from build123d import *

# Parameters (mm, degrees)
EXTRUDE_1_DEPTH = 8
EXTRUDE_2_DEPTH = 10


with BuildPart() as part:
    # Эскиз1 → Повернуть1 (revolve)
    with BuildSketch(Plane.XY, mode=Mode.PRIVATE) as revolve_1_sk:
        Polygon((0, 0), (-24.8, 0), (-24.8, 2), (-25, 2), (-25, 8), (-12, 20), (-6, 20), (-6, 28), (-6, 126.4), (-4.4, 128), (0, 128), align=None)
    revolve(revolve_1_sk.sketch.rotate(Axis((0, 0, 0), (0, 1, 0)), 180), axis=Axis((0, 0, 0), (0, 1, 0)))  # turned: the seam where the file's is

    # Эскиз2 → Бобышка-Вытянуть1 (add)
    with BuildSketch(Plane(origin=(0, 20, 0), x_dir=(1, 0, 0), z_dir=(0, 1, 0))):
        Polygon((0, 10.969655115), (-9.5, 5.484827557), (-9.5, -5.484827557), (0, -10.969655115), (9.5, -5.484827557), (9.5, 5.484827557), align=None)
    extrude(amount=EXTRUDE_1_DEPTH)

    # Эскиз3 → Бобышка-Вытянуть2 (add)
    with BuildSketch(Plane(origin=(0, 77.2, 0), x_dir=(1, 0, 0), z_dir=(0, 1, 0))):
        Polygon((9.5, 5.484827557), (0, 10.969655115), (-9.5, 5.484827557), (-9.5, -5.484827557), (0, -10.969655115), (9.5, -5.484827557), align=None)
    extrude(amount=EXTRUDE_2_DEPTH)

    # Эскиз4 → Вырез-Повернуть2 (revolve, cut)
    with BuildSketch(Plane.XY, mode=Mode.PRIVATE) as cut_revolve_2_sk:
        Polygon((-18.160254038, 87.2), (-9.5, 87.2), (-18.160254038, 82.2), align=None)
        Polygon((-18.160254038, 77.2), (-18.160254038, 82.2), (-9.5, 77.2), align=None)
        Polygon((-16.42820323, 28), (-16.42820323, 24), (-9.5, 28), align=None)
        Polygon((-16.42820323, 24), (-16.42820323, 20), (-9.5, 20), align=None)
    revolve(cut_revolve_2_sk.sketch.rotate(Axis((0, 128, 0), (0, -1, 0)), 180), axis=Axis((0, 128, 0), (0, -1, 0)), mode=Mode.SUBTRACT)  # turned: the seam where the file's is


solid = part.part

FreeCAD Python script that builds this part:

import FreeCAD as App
import Part
import Sketcher

V = App.Vector
Q = App.Units.Quantity

doc = App.newDocument("Part")
body = doc.addObject("PartDesign::Body", "Body")

# Sketch on XY plane
sketch1 = doc.addObject("Sketcher::SketchObject", "Sketch")
body.addObject(sketch1)
sketch1.AttachmentSupport = (doc.XY_Plane, [""])
sketch1.MapMode = "FlatFace"
sketch1.addGeometry([
    Part.LineSegment(V(-24.8, 0, 0), V(0, 0, 0)),  # 0
    Part.LineSegment(V(0, 0, 0), V(0, 128, 0)),  # 1
    Part.LineSegment(V(0, 128, 0), V(-4.4, 128, 0)),  # 2
    Part.LineSegment(V(-4.4, 128, 0), V(-6, 126.4, 0)),  # 3
    Part.LineSegment(V(-6, 126.4, 0), V(-6, 20, 0)),  # 4
    Part.LineSegment(V(-6, 20, 0), V(-12, 20, 0)),  # 5
    Part.LineSegment(V(-12, 20, 0), V(-25, 8, 0)),  # 6
    Part.LineSegment(V(-25, 8, 0), V(-25, 2, 0)),  # 7
    Part.LineSegment(V(-25, 2, 0), V(-24.8, 2, 0)),  # 8
    Part.LineSegment(V(-24.8, 2, 0), V(-24.8, 0, 0)),  # 9
], False)
sketch1.addConstraint([
    Sketcher.Constraint("Coincident", 0, 2, 1, 1),
    Sketcher.Constraint("Coincident", 1, 2, 2, 1),
    Sketcher.Constraint("Coincident", 2, 2, 3, 1),
    Sketcher.Constraint("Coincident", 3, 2, 4, 1),
    Sketcher.Constraint("Coincident", 4, 2, 5, 1),
    Sketcher.Constraint("Coincident", 5, 2, 6, 1),
    Sketcher.Constraint("Coincident", 6, 2, 7, 1),
    Sketcher.Constraint("Coincident", 7, 2, 8, 1),
    Sketcher.Constraint("Coincident", 8, 2, 9, 1),
    Sketcher.Constraint("Coincident", 9, 2, 0, 1),
    Sketcher.Constraint("Horizontal", 0),
    Sketcher.Constraint("Vertical", 1),
    Sketcher.Constraint("Horizontal", 2),
    Sketcher.Constraint("Vertical", 4),
    Sketcher.Constraint("Horizontal", 5),
    Sketcher.Constraint("Vertical", 7),
    Sketcher.Constraint("Horizontal", 8),
    Sketcher.Constraint("Vertical", 9),
    Sketcher.Constraint("Coincident", 0, 2, -1, 1),
    Sketcher.Constraint("Equal", 5, 7),
    Sketcher.Constraint("DistanceX", 5, 2, 5, 1, 6.0),
    Sketcher.Constraint("DistanceY", 1, 1, 1, 2, 128.0),
    Sketcher.Constraint("DistanceY", 9, 2, 9, 1, 2.0),
    Sketcher.Constraint("Angle", 3, Q("-135 deg")),
    Sketcher.Constraint("DistanceX", 0, 1, 0, 2, 24.8),
    Sketcher.Constraint("DistanceX", 2, 2, 2, 1, 4.4),
    Sketcher.Constraint("DistanceX", 8, 1, 8, 2, 0.2),
    Sketcher.Constraint("DistanceY", 4, 2, 4, 1, 106.4),
    Sketcher.Constraint("DistanceX", 3, 2, -1, 1, 6.0),
])
revolution = doc.addObject("PartDesign::Revolution", "Revolution")
body.addObject(revolution)
revolution.Profile = sketch1
revolution.ReferenceAxis = (sketch1, ["V_Axis"])
revolution.Angle = 360

# Sketch on XZ plane
sketch2 = doc.addObject("Sketcher::SketchObject", "Sketch001")
body.addObject(sketch2)
sketch2.AttachmentSupport = (doc.XZ_Plane, [""])
sketch2.MapMode = "FlatFace"
sketch2.AttachmentOffset = App.Placement(V(0, 0, -20), App.Rotation())
sketch2.addGeometry([
    Part.LineSegment(V(0, -11, 0), V(-10, -5, 0)),  # 0
    Part.LineSegment(V(-10, -5, 0), V(-10, 5, 0)),  # 1
    Part.LineSegment(V(-10, 5, 0), V(0, 11, 0)),  # 2
    Part.LineSegment(V(0, 11, 0), V(10, 5, 0)),  # 3
    Part.LineSegment(V(10, 5, 0), V(10, -5, 0)),  # 4
    Part.LineSegment(V(10, -5, 0), V(0, -11, 0)),  # 5
], False)
sketch2.addConstraint([
    Sketcher.Constraint("Coincident", 0, 2, 1, 1),
    Sketcher.Constraint("Coincident", 1, 2, 2, 1),
    Sketcher.Constraint("Coincident", 2, 2, 3, 1),
    Sketcher.Constraint("Coincident", 3, 2, 4, 1),
    Sketcher.Constraint("Coincident", 4, 2, 5, 1),
    Sketcher.Constraint("Coincident", 5, 2, 0, 1),
    Sketcher.Constraint("Vertical", 1),
    Sketcher.Constraint("Vertical", 4),
    Sketcher.Constraint("Symmetric", 0, 2, 3, 2, -1, 1),
    Sketcher.Constraint("Symmetric", 2, 2, 5, 2, -1, 1),
    Sketcher.Constraint("PointOnObject", 2, 2, -2),
    Sketcher.Constraint("Parallel", 2, 5),
    Sketcher.Constraint("Horizontal", 1, 2, 3, 2),
    Sketcher.Constraint("Angle", 0, Q("150 deg")),
    Sketcher.Constraint("DistanceX", 1, 2, 3, 2, 19.0),
    Sketcher.Constraint("DistanceY", 1, 1, 1, 2, 10.969655),
])
pad1 = doc.addObject("PartDesign::Pad", "Pad")
body.addObject(pad1)
pad1.Profile = sketch2
pad1.Length = 8
pad1.Reversed = True

# Sketch on XZ plane
sketch3 = doc.addObject("Sketcher::SketchObject", "Sketch002")
body.addObject(sketch3)
sketch3.AttachmentSupport = (doc.XZ_Plane, [""])
sketch3.MapMode = "FlatFace"
sketch3.AttachmentOffset = App.Placement(V(0, 0, -77.2), App.Rotation())
sketch3.addGeometry([
    Part.LineSegment(V(10, -5, 0), V(0, -11, 0)),  # 0
    Part.LineSegment(V(0, -11, 0), V(-10, -5, 0)),  # 1
    Part.LineSegment(V(-10, -5, 0), V(-10, 5, 0)),  # 2
    Part.LineSegment(V(-10, 5, 0), V(0, 11, 0)),  # 3
    Part.LineSegment(V(0, 11, 0), V(10, 5, 0)),  # 4
    Part.LineSegment(V(10, 5, 0), V(10, -5, 0)),  # 5
], False)
sketch3.addConstraint([
    Sketcher.Constraint("Coincident", 0, 2, 1, 1),
    Sketcher.Constraint("Coincident", 1, 2, 2, 1),
    Sketcher.Constraint("Coincident", 2, 2, 3, 1),
    Sketcher.Constraint("Coincident", 3, 2, 4, 1),
    Sketcher.Constraint("Coincident", 4, 2, 5, 1),
    Sketcher.Constraint("Coincident", 5, 2, 0, 1),
    Sketcher.Constraint("Vertical", 2),
    Sketcher.Constraint("Vertical", 5),
    Sketcher.Constraint("Symmetric", 0, 2, 3, 2, -1, 1),
    Sketcher.Constraint("Symmetric", 1, 2, 4, 2, -1, 1),
    Sketcher.Constraint("PointOnObject", 0, 2, -2),
    Sketcher.Constraint("Parallel", 0, 3),
    Sketcher.Constraint("Horizontal", 2, 2, 4, 2),
    Sketcher.Constraint("Angle", 0, Q("-150 deg")),
    Sketcher.Constraint("DistanceX", 2, 2, 4, 2, 19.0),
    Sketcher.Constraint("DistanceY", 2, 1, 2, 2, 10.969655),
])
pad2 = doc.addObject("PartDesign::Pad", "Pad001")
body.addObject(pad2)
pad2.Profile = sketch3
pad2.Length = 10
pad2.Reversed = True

# Sketch on XY plane
sketch4 = doc.addObject("Sketcher::SketchObject", "Sketch003")
body.addObject(sketch4)
sketch4.AttachmentSupport = (doc.XY_Plane, [""])
sketch4.MapMode = "FlatFace"
sketch4.addGeometry([
    Part.LineSegment(V(-9.5, 87.2, 0), V(-18.2, 87.2, 0)),  # 0
    Part.LineSegment(V(-18.2, 87.2, 0), V(-18.2, 82.2, 0)),  # 1
    Part.LineSegment(V(-18.2, 82.2, 0), V(-9.5, 87.2, 0)),  # 2
    Part.LineSegment(V(-18.2, 82.2, 0), V(-18.2, 77.2, 0)),  # 3
    Part.LineSegment(V(-18.2, 77.2, 0), V(-9.5, 77.2, 0)),  # 4
    Part.LineSegment(V(-9.5, 77.2, 0), V(-18.2, 82.2, 0)),  # 5
    Part.LineSegment(V(-16.4, 28, 0), V(-16.4, 24, 0)),  # 6
    Part.LineSegment(V(-16.4, 24, 0), V(-9.5, 28, 0)),  # 7
    Part.LineSegment(V(-9.5, 28, 0), V(-16.4, 28, 0)),  # 8
    Part.LineSegment(V(-16.4, 24, 0), V(-16.4, 20, 0)),  # 9
    Part.LineSegment(V(-16.4, 20, 0), V(-9.5, 20, 0)),  # 10
    Part.LineSegment(V(-9.5, 20, 0), V(-16.4, 24, 0)),  # 11
], False)
sketch4.addConstraint([
    Sketcher.Constraint("Coincident", 0, 2, 1, 1),
    Sketcher.Constraint("Coincident", 1, 2, 2, 1),
    Sketcher.Constraint("Coincident", 2, 2, 0, 1),
    Sketcher.Constraint("Coincident", 3, 2, 4, 1),
    Sketcher.Constraint("Coincident", 4, 2, 5, 1),
    Sketcher.Constraint("Coincident", 5, 2, 3, 1),
    Sketcher.Constraint("Coincident", 6, 2, 7, 1),
    Sketcher.Constraint("Coincident", 7, 2, 8, 1),
    Sketcher.Constraint("Coincident", 8, 2, 6, 1),
    Sketcher.Constraint("Coincident", 9, 2, 10, 1),
    Sketcher.Constraint("Coincident", 10, 2, 11, 1),
    Sketcher.Constraint("Coincident", 11, 2, 9, 1),
    Sketcher.Constraint("Horizontal", 0),
    Sketcher.Constraint("Vertical", 1),
    Sketcher.Constraint("Vertical", 3),
    Sketcher.Constraint("Horizontal", 4),
    Sketcher.Constraint("Vertical", 6),
    Sketcher.Constraint("Horizontal", 8),
    Sketcher.Constraint("Vertical", 9),
    Sketcher.Constraint("Horizontal", 10),
    Sketcher.Constraint("Coincident", 5, 2, 1, 2),
    Sketcher.Constraint("Coincident", 11, 2, 6, 2),
    Sketcher.Constraint("Parallel", 2, 7),
    Sketcher.Constraint("Parallel", 5, 11),
    Sketcher.Constraint("Vertical", 2, 2, 4, 2),
    Sketcher.Constraint("Vertical", 4, 2, 7, 2),
    Sketcher.Constraint("Vertical", 7, 2, 10, 2),
    Sketcher.Constraint("Equal", 1, 3),
    Sketcher.Constraint("DistanceY", 1, 2, 1, 1, 5.0),
    Sketcher.Constraint("DistanceY", 6, 2, 6, 1, 4.0),
    Sketcher.Constraint("Angle", 2, Q("30 deg")),
    Sketcher.Constraint("DistanceY", -1, 1, 6, 2, 24.0),
    Sketcher.Constraint("DistanceY", -1, 1, 0, 2, 87.2),
    Sketcher.Constraint("DistanceX", 2, 2, -1, 1, 9.5),
])
groove = doc.addObject("PartDesign::Groove", "Groove")
body.addObject(groove)
groove.Profile = sketch4
groove.ReferenceAxis = (sketch4, ["V_Axis"])
groove.Angle = 360

doc.recompute()
